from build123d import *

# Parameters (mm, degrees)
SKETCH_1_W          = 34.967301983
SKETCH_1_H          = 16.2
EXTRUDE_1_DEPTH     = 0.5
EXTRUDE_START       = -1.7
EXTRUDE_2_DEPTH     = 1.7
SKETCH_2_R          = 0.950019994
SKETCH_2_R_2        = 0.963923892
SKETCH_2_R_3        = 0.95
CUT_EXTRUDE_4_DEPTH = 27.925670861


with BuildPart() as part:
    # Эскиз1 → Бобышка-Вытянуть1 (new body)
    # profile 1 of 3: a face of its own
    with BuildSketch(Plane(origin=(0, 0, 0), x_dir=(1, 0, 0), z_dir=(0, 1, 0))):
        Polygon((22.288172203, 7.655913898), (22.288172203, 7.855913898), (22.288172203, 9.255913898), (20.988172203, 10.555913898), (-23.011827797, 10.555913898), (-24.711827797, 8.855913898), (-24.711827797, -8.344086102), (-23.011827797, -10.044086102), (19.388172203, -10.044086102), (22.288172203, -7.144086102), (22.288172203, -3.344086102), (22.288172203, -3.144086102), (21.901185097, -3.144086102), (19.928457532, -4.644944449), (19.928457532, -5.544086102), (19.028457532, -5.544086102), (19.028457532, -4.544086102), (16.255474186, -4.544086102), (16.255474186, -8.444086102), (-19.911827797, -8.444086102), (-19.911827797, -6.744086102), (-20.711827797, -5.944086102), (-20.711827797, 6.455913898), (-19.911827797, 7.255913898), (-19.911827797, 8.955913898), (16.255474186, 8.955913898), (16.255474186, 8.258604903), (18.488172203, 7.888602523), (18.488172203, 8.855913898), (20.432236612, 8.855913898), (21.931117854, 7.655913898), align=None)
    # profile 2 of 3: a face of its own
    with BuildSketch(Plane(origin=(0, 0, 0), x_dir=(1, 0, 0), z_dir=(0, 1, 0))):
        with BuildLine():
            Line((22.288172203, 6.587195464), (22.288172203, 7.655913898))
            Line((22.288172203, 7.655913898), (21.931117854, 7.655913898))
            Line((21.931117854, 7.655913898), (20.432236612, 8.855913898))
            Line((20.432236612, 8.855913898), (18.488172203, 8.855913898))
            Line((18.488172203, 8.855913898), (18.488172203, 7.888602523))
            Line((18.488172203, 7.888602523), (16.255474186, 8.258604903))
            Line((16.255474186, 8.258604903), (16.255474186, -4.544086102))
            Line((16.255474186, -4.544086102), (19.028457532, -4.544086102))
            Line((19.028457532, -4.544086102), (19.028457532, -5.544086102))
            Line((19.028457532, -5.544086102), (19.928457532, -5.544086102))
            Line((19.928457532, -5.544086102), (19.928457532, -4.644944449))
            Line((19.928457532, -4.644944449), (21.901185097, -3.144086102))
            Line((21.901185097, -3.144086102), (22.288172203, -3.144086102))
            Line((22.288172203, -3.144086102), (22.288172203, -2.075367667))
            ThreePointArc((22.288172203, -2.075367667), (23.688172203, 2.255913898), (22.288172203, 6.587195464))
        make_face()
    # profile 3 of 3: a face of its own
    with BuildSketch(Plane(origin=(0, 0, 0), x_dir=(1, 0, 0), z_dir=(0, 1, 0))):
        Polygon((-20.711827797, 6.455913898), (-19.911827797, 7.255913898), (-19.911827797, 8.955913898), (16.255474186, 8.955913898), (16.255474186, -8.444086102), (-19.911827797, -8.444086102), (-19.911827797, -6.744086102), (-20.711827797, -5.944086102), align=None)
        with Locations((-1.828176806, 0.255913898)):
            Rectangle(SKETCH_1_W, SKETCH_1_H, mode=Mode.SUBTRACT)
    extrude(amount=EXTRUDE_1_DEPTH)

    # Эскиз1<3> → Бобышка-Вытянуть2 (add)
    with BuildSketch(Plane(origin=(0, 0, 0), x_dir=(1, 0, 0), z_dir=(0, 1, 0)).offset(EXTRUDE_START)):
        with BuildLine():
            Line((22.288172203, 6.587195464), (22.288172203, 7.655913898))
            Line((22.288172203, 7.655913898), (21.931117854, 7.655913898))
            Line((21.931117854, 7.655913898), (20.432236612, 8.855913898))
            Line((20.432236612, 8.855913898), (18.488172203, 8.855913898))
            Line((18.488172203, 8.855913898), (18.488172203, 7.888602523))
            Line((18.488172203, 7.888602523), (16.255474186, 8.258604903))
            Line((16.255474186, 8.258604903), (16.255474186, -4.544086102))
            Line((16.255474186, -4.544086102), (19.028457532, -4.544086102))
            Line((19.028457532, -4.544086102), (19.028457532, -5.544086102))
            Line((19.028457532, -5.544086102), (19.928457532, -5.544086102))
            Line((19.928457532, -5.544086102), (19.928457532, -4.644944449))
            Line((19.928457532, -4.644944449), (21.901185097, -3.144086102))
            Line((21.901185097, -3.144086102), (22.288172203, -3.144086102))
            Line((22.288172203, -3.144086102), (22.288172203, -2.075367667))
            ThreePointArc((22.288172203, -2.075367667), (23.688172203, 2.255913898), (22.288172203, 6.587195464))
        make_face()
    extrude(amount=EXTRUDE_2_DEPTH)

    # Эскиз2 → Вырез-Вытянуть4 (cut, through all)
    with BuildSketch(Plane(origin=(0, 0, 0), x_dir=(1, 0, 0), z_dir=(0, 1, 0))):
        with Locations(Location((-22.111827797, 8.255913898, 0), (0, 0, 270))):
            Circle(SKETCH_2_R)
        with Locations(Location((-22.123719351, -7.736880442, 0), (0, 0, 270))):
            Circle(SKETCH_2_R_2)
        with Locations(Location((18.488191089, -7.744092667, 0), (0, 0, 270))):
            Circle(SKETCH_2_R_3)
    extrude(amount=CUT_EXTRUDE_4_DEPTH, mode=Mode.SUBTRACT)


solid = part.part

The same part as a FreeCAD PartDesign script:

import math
import FreeCAD as App
import Part
import Sketcher

V = App.Vector


def add_polygon(sketch, points):
    """Adds a closed chain of lines whose ends are joined by coincident constraints."""
    first, n = sketch.GeometryCount, len(points)
    for a, b in zip(points, points[1:] + points[:1]):
        sketch.addGeometry(Part.LineSegment(App.Vector(*a, 0), App.Vector(*b, 0)), False)
    for i in range(n):
        sketch.addConstraint(Sketcher.Constraint("Coincident", first + i, 2, first + (i + 1) % n, 1))

doc = App.newDocument("Part")
body = doc.addObject("PartDesign::Body", "Body")

sketch1 = body.newObject("Sketcher::SketchObject", "Sketch")
sketch1.AttachmentSupport = (doc.getObject("XZ_Plane"), [""])
sketch1.MapMode = "FlatFace"
sketch1.addGeometry(Part.LineSegment(V(22.288172, -9.255914, 0), V(20.988172, -10.555914, 0)), False)
sketch1.addGeometry(Part.LineSegment(V(20.988172, -10.555914, 0), V(-23.011828, -10.555914, 0)), False)
sketch1.addGeometry(Part.LineSegment(V(-23.011828, -10.555914, 0), V(-24.711828, -8.855914, 0)), False)
sketch1.addGeometry(Part.LineSegment(V(-24.711828, -8.855914, 0), V(-24.711828, 8.344086, 0)), False)
sketch1.addGeometry(Part.LineSegment(V(-24.711828, 8.344086, 0), V(-23.011828, 10.044086, 0)), False)
sketch1.addGeometry(Part.LineSegment(V(-23.011828, 10.044086, 0), V(19.388172, 10.044086, 0)), False)
sketch1.addGeometry(Part.LineSegment(V(19.388172, 10.044086, 0), V(22.288172, 7.144086, 0)), False)
sketch1.addGeometry(Part.LineSegment(V(22.288172, 7.144086, 0), V(22.288172, 2.075368, 0)), False)
sketch1.addGeometry(Part.ArcOfCircle(Part.Circle(V(16.288172, -2.255914, 0), V(0, 0, 1), 7.4), math.radians(-35.824774), math.radians(35.824774)), False)
sketch1.addGeometry(Part.LineSegment(V(22.288172, -6.587195, 0), V(22.288172, -9.255914, 0)), False)
add_polygon(sketch1, [(15.655474, 7.844086), (-19.311828, 7.844086), (-19.311828, -8.355914), (15.655474, -8.355914)])
sketch1.addConstraint([
    Sketcher.Constraint("Coincident", 0, 2, 1, 1),
    Sketcher.Constraint("Coincident", 1, 2, 2, 1),
    Sketcher.Constraint("Coincident", 2, 2, 3, 1),
    Sketcher.Constraint("Coincident", 3, 2, 4, 1),
    Sketcher.Constraint("Coincident", 4, 2, 5, 1),
    Sketcher.Constraint("Coincident", 5, 2, 6, 1),
    Sketcher.Constraint("Coincident", 6, 2, 7, 1),
    Sketcher.Constraint("Coincident", 7, 2, 8, 2),
    Sketcher.Constraint("Coincident", 8, 1, 9, 1),
    Sketcher.Constraint("Coincident", 9, 2, 0, 1),
    Sketcher.Constraint("Horizontal", 1),
    Sketcher.Constraint("Vertical", 3),
    Sketcher.Constraint("Horizontal", 5),
    Sketcher.Constraint("Vertical", 7),
    Sketcher.Constraint("Vertical", 9),
    Sketcher.Constraint("Horizontal", 10),
    Sketcher.Constraint("Vertical", 11),
    Sketcher.Constraint("Horizontal", 12),
    Sketcher.Constraint("Vertical", 13),
    Sketcher.Constraint("Perpendicular", 0, 2),
    Sketcher.Constraint("Perpendicular", 2, 4),
    Sketcher.Constraint("Perpendicular", 4, 6),
    Sketcher.Constraint("Vertical", 1, 2, 4, 2),
    Sketcher.Constraint("Vertical", 7, 2, 8, 1),
    Sketcher.Constraint("Equal", 2, 4),
    Sketcher.Constraint("Radius", 8, 7.4),
    Sketcher.Constraint("DistanceX", 1, 2, 1, 1, 44.0),
    Sketcher.Constraint("DistanceX", 5, 1, 5, 2, 42.4),
    Sketcher.Constraint("DistanceY", 3, 1, 3, 2, 17.2),
    Sketcher.Constraint("DistanceY", 11, 2, 11, 1, 16.2),
    Sketcher.Constraint("DistanceX", 2, 2, 8, 3, 41.0),
    Sketcher.Constraint("DistanceX", 8, 3, 6, 2, 6.0),
    Sketcher.Constraint("DistanceY", 9, 2, 8, 3, 7.0),
    Sketcher.Constraint("DistanceX", 8, 3, 0, 2, 4.7),
    Sketcher.Constraint("DistanceX", 4, 2, 10, 2, 3.7),
    Sketcher.Constraint("DistanceY", 10, 2, 4, 2, 2.2),
    Sketcher.Constraint("DistanceX", 10, 2, 10, 1, 34.967302),
    Sketcher.Constraint("DistanceX", -1, 1, 8, 3, 16.288172),
    Sketcher.Constraint("DistanceY", 8, 3, -1, 1, 2.255914),
])
pad1 = body.newObject("PartDesign::Pad", "Pad")
pad1.Profile = sketch1
pad1.Length = 0.5
pad1.Reversed = True

sketch2 = body.newObject("Sketcher::SketchObject", "Sketch001")
sketch2.AttachmentSupport = (doc.getObject("XZ_Plane"), [""])
sketch2.MapMode = "FlatFace"
sketch2.AttachmentOffset = App.Placement(V(0, 0, 1.7), App.Rotation())
sketch2.addGeometry([
    Part.LineSegment(V(22.288172, -6.587195, 0), V(22.288172, -7.655914, 0)),
    Part.LineSegment(V(22.288172, -7.655914, 0), V(21.931118, -7.655914, 0)),
    Part.LineSegment(V(21.931118, -7.655914, 0), V(20.432237, -8.855914, 0)),
    Part.LineSegment(V(20.432237, -8.855914, 0), V(18.488172, -8.855914, 0)),
    Part.LineSegment(V(18.488172, -8.855914, 0), V(18.488172, -7.888603, 0)),
    Part.LineSegment(V(18.488172, -7.888603, 0), V(16.255474, -8.258605, 0)),
    Part.LineSegment(V(16.255474, -8.258605, 0), V(16.255474, 4.544086, 0)),
    Part.LineSegment(V(16.255474, 4.544086, 0), V(19.028458, 4.544086, 0)),
    Part.LineSegment(V(19.028458, 4.544086, 0), V(19.028458, 5.544086, 0)),
    Part.LineSegment(V(19.028458, 5.544086, 0), V(19.928458, 5.544086, 0)),
    Part.LineSegment(V(19.928458, 5.544086, 0), V(19.928458, 4.644944, 0)),
    Part.LineSegment(V(19.928458, 4.644944, 0), V(21.901185, 3.144086, 0)),
    Part.LineSegment(V(21.901185, 3.144086, 0), V(22.288172, 3.144086, 0)),
    Part.LineSegment(V(22.288172, 3.144086, 0), V(22.288172, 2.075368, 0)),
    Part.ArcOfCircle(Part.Circle(V(16.288172, -2.255914, 0), V(0, 0, 1), 7.4), math.radians(-35.824774), math.radians(35.824774)),
], False)
sketch2.addConstraint([
    Sketcher.Constraint("Coincident", 0, 2, 1, 1),
    Sketcher.Constraint("Coincident", 1, 2, 2, 1),
    Sketcher.Constraint("Coincident", 2, 2, 3, 1),
    Sketcher.Constraint("Coincident", 3, 2, 4, 1),
    Sketcher.Constraint("Coincident", 4, 2, 5, 1),
    Sketcher.Constraint("Coincident", 5, 2, 6, 1),
    Sketcher.Constraint("Coincident", 6, 2, 7, 1),
    Sketcher.Constraint("Coincident", 7, 2, 8, 1),
    Sketcher.Constraint("Coincident", 8, 2, 9, 1),
    Sketcher.Constraint("Coincident", 9, 2, 10, 1),
    Sketcher.Constraint("Coincident", 10, 2, 11, 1),
    Sketcher.Constraint("Coincident", 11, 2, 12, 1),
    Sketcher.Constraint("Coincident", 12, 2, 13, 1),
    Sketcher.Constraint("Coincident", 13, 2, 14, 2),
    Sketcher.Constraint("Coincident", 14, 1, 0, 1),
    Sketcher.Constraint("Vertical", 0),
    Sketcher.Constraint("Horizontal", 1),
    Sketcher.Constraint("Horizontal", 3),
    Sketcher.Constraint("Vertical", 4),
    Sketcher.Constraint("Vertical", 6),
    Sketcher.Constraint("Horizontal", 7),
    Sketcher.Constraint("Vertical", 8),
    Sketcher.Constraint("Horizontal", 9),
    Sketcher.Constraint("Vertical", 10),
    Sketcher.Constraint("Horizontal", 12),
    Sketcher.Constraint("Vertical", 13),
    Sketcher.Constraint("Vertical", 0, 2, 12, 2),
    Sketcher.Constraint("Equal", 0, 13),
    Sketcher.Constraint("Radius", 14, 7.4),
    Sketcher.Constraint("DistanceY", 8, 1, 8, 2, 1.0),
    Sketcher.Constraint("DistanceX", 9, 1, 9, 2, 0.9),
    Sketcher.Constraint("DistanceX", 14, 3, 0, 2, 6.0),
    Sketcher.Constraint("DistanceY", 0, 2, 14, 3, 5.4),
    Sketcher.Constraint("DistanceY", 2, 2, 1, 2, 1.2),
    Sketcher.Constraint("DistanceX", 3, 2, 0, 2, 3.8),
    Sketcher.Constraint("DistanceY", 14, 3, 6, 2, 6.8),
    Sketcher.Constraint("DistanceY", 4, 1, 4, 2, 0.967311),
    Sketcher.Constraint("DistanceY", 6, 1, 6, 2, 12.802691),
    Sketcher.Constraint("DistanceY", 10, 2, 10, 1, 0.899142),
    Sketcher.Constraint("DistanceX", 5, 2, 4, 2, 2.232698),
    Sketcher.Constraint("DistanceX", 1, 2, 1, 1, 0.357054),
    Sketcher.Constraint("DistanceX", 3, 2, 3, 1, 1.944064),
    Sketcher.Constraint("DistanceX", 7, 1, 7, 2, 2.772983),
    Sketcher.Constraint("DistanceX", 12, 1, 12, 2, 0.386987),
    Sketcher.Constraint("DistanceX", -1, 1, 14, 3, 16.288172),
    Sketcher.Constraint("DistanceY", 14, 3, -1, 1, 2.255914),
])
pad2 = body.newObject("PartDesign::Pad", "Pad001")
pad2.Profile = sketch2
pad2.Length = 1.7
pad2.Reversed = True

sketch3 = body.newObject("Sketcher::SketchObject", "Sketch002")
sketch3.AttachmentSupport = (doc.getObject("XZ_Plane"), [""])
sketch3.MapMode = "FlatFace"
sketch3.addGeometry([
    Part.Circle(V(-22.111828, -8.255914, 0), V(0, 0, 1), 0.95002),
    Part.Circle(V(-22.123719, 7.73688, 0), V(0, 0, 1), 0.963924),
    Part.Circle(V(18.488191, 7.744093, 0), V(0, 0, 1), 0.95),
], False)
sketch3.addConstraint([
    Sketcher.Constraint("Diameter", 2, 1.9),
    Sketcher.Constraint("Diameter", 0, 1.90004),
    Sketcher.Constraint("Diameter", 1, 1.927848),
    Sketcher.Constraint("DistanceX", 1, 3, -1, 1, 22.123719),
    Sketcher.Constraint("DistanceY", -1, 1, 1, 3, 7.73688),
    Sketcher.Constraint("DistanceX", -1, 1, 2, 3, 18.488191),
    Sketcher.Constraint("DistanceX", 1, 3, 0, 3, 0.011892),
    Sketcher.Constraint("DistanceY", 0, 3, -1, 1, 8.255914),
    Sketcher.Constraint("DistanceY", -1, 1, 2, 3, 7.744093),
])
pocket1 = body.newObject("PartDesign::Pocket", "Pocket")
pocket1.Profile = sketch3
pocket1.Type = "ThroughAll"

doc.recompute()
